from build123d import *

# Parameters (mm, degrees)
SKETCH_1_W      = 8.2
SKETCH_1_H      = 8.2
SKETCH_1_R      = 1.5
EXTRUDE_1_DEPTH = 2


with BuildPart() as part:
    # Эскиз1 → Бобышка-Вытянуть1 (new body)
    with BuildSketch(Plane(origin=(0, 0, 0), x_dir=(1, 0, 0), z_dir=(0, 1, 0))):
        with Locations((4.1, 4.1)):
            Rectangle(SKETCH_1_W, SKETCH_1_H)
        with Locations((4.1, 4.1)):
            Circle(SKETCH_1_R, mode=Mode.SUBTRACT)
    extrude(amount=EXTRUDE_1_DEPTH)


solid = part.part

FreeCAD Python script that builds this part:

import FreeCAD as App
import Part
import Sketcher
from FreeCAD import Vector

doc = App.newDocument("Part")
body = doc.addObject("PartDesign::Body", "Body")

# Sketch on XZ plane
sketch1 = body.newObject("Sketcher::SketchObject", "Sketch")
sketch1.AttachmentSupport = (doc.getObject("XZ_Plane"), [""])
sketch1.MapMode = "FlatFace"
sketch1.addGeometry(Part.LineSegment(Vector(0, -8.2, 0), Vector(0, 0, 0)), False)
sketch1.addGeometry(Part.LineSegment(Vector(0, 0, 0), Vector(8.2, 0, 0)), False)
sketch1.addGeometry(Part.LineSegment(Vector(8.2, 0, 0), Vector(8.2, -8.2, 0)), False)
sketch1.addGeometry(Part.LineSegment(Vector(8.2, -8.2, 0), Vector(0, -8.2, 0)), False)
sketch1.addGeometry(Part.Circle(Vector(4.1, -4.1, 0), Vector(0, 0, 1), 1.5), False)
sketch1.addConstraint(Sketcher.Constraint("Coincident", 0, 2, 1, 1))
sketch1.addConstraint(Sketcher.Constraint("Coincident", 1, 2, 2, 1))
sketch1.addConstraint(Sketcher.Constraint("Coincident", 2, 2, 3, 1))
sketch1.addConstraint(Sketcher.Constraint("Coincident", 3, 2, 0, 1))
sketch1.addConstraint(Sketcher.Constraint("Vertical", 0))
sketch1.addConstraint(Sketcher.Constraint("Horizontal", 1))
sketch1.addConstraint(Sketcher.Constraint("Vertical", 2))
sketch1.addConstraint(Sketcher.Constraint("Horizontal", 3))
sketch1.addConstraint(Sketcher.Constraint("Coincident", 0, 2, -1, 1))
sketch1.addConstraint(Sketcher.Constraint("Equal", 3, 0))
sketch1.addConstraint(Sketcher.Constraint("Diameter", 4, 3.0))
sketch1.addConstraint(Sketcher.Constraint("DistanceX", 1, 1, 1, 2, 8.2))
sketch1.addConstraint(Sketcher.Constraint("DistanceX", -1, 1, 4, 3, 4.1))
sketch1.addConstraint(Sketcher.Constraint("DistanceY", 4, 3, -1, 1, 4.1))
pad1 = body.newObject("PartDesign::Pad", "Pad")
pad1.Profile = sketch1
pad1.Length = 2
pad1.Reversed = True

doc.recompute()
